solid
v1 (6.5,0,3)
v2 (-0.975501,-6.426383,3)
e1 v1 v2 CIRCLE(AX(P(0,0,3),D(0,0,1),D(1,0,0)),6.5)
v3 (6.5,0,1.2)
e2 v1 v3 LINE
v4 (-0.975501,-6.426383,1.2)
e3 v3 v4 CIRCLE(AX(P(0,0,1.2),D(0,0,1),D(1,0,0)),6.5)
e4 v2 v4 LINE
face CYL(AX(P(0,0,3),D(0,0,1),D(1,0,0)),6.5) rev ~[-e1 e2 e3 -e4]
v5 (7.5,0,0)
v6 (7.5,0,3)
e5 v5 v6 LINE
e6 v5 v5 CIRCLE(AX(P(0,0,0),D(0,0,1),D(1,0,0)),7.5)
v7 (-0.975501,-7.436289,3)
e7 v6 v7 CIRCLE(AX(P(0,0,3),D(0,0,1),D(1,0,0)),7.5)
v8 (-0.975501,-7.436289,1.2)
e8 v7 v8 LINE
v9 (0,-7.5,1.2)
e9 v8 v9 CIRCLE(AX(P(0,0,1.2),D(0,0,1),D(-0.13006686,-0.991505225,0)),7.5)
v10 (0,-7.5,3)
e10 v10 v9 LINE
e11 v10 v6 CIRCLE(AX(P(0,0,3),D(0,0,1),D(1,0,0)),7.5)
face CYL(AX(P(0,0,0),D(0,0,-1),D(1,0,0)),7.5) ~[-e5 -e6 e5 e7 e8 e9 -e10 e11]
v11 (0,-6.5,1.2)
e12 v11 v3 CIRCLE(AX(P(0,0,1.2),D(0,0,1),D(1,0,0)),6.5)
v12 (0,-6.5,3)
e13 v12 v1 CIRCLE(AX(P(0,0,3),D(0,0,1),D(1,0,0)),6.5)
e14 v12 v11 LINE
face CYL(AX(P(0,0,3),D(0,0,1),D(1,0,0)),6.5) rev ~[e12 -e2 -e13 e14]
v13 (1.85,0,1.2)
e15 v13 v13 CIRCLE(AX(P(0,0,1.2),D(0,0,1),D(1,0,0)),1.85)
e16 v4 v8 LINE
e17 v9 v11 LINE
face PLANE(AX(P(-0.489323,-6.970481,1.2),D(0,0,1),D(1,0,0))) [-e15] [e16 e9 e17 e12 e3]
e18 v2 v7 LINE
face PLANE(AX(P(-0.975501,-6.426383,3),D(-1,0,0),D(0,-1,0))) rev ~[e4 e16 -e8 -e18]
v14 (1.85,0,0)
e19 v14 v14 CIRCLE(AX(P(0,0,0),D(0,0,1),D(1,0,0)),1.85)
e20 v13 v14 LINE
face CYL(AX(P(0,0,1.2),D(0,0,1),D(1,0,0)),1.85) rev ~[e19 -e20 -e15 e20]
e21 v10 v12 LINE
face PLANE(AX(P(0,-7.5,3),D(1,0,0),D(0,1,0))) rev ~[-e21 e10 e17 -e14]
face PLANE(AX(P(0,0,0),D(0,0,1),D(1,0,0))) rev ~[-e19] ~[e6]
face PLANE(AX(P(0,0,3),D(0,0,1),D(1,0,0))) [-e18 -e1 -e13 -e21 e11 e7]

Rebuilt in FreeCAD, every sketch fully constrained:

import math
import FreeCAD as App
import Part
import Sketcher

V = App.Vector

doc = App.newDocument("Part")
params = doc.addObject("Spreadsheet::Sheet", "Params")
for row, (alias, value) in enumerate([
    ("sketch1_diameter", "15 mm"),
    ("pad1_length", "3 mm"),
    ("sketch2_diameter", "13 mm"),
    ("pocket1_length", "1.8 mm"),
    ("sketch3_radius", "6.5 mm"),
    ("sketch3_radius2", "7.5 mm"),
    ("pocket2_length", "1.8 mm"),
    ("sketch4_diameter", "3.7 mm"),
    ("pocket3_length", "2 mm"),
], start=1):
    params.set(f"A{row}", alias)
    params.set(f"B{row}", "=" + value)
    params.setAlias(f"B{row}", alias)

body = doc.addObject("PartDesign::Body", "Body")

sketch1 = body.newObject("Sketcher::SketchObject", "Sketch")
sketch1.AttachmentSupport = (doc.getObject("XY_Plane"), [""])
sketch1.MapMode = "FlatFace"
sketch1.addGeometry(Part.Circle(V(0, 0, 0), V(0, 0, 1), 8), False)
sketch1.addConstraint([
    Sketcher.Constraint("Coincident", 0, 3, -1, 1),
    Sketcher.Constraint("Diameter", 0, 15.0),
])
sketch1.setExpression("Constraints[1]", "Params.sketch1_diameter")
pad1 = body.newObject("PartDesign::Pad", "Pad")
pad1.Profile = sketch1
pad1.setExpression("Length", "Params.pad1_length")

sketch2 = body.newObject("Sketcher::SketchObject", "Sketch001")
sketch2.AttachmentSupport = (doc.getObject("XY_Plane"), [""])
sketch2.MapMode = "FlatFace"
sketch2.AttachmentOffset = App.Placement(V(0, 0, 3), App.Rotation())
sketch2.addGeometry(Part.Circle(V(0, 0, 0), V(0, 0, 1), 7), False)
sketch2.addConstraint([
    Sketcher.Constraint("Coincident", 0, 3, -1, 1),
    Sketcher.Constraint("Diameter", 0, 13.0),
])
sketch2.setExpression("Constraints[1]", "Params.sketch2_diameter")
pocket1 = body.newObject("PartDesign::Pocket", "Pocket")
pocket1.Profile = sketch2
pocket1.setExpression("Length", "Params.pocket1_length")

sketch3 = body.newObject("Sketcher::SketchObject", "Sketch002")
sketch3.AttachmentSupport = (doc.getObject("XY_Plane"), [""])
sketch3.MapMode = "FlatFace"
sketch3.AttachmentOffset = App.Placement(V(0, 0, 3), App.Rotation())
sketch3.addGeometry([
    Part.LineSegment(V(0, -7.5, 0), V(0, -6.5, 0)),
    Part.ArcOfCircle(Part.Circle(V(0, 0, 0), V(0, 0, 1), 6.5), math.radians(-98.63), math.radians(-90)),
    Part.LineSegment(V(-1, -6.4, 0), V(-1, -7.4, 0)),
    Part.ArcOfCircle(Part.Circle(V(0, 0, 0), V(0, 0, 1), 7.5), math.radians(-97.47), math.radians(-90)),
], False)
sketch3.addConstraint([
    Sketcher.Constraint("Coincident", 0, 2, 1, 2),
    Sketcher.Constraint("Coincident", 1, 1, 2, 1),
    Sketcher.Constraint("Coincident", 2, 2, 3, 1),
    Sketcher.Constraint("Coincident", 3, 2, 0, 1),
    Sketcher.Constraint("Vertical", 0),
    Sketcher.Constraint("Vertical", 2),
    Sketcher.Constraint("Coincident", 1, 3, -1, 1),
    Sketcher.Constraint("Coincident", 3, 3, -1, 1),
    Sketcher.Constraint("PointOnObject", 0, 2, -2),
    Sketcher.Constraint("Radius", 1, 6.5),
    Sketcher.Constraint("Radius", 3, 7.5),
    Sketcher.Constraint("DistanceX", 1, 1, -1, 1, 0.975501),
])
sketch3.setExpression("Constraints[9]", "Params.sketch3_radius")
sketch3.setExpression("Constraints[10]", "Params.sketch3_radius2")
pocket2 = body.newObject("PartDesign::Pocket", "Pocket001")
pocket2.Profile = sketch3
pocket2.setExpression("Length", "Params.pocket2_length")

sketch4 = body.newObject("Sketcher::SketchObject", "Sketch003")
sketch4.AttachmentSupport = (doc.getObject("XY_Plane"), [""])
sketch4.MapMode = "FlatFace"
sketch4.AttachmentOffset = App.Placement(V(0, 0, 1.2), App.Rotation())
sketch4.addGeometry(Part.Circle(V(0, 0, 0), V(0, 0, 1), 1.9), False)
sketch4.addConstraint([
    Sketcher.Constraint("Coincident", 0, 3, -1, 1),
    Sketcher.Constraint("Diameter", 0, 3.7),
])
sketch4.setExpression("Constraints[1]", "Params.sketch4_diameter")
pocket3 = body.newObject("PartDesign::Pocket", "Pocket002")
pocket3.Profile = sketch4
pocket3.setExpression("Length", "Params.pocket3_length")

doc.recompute()
